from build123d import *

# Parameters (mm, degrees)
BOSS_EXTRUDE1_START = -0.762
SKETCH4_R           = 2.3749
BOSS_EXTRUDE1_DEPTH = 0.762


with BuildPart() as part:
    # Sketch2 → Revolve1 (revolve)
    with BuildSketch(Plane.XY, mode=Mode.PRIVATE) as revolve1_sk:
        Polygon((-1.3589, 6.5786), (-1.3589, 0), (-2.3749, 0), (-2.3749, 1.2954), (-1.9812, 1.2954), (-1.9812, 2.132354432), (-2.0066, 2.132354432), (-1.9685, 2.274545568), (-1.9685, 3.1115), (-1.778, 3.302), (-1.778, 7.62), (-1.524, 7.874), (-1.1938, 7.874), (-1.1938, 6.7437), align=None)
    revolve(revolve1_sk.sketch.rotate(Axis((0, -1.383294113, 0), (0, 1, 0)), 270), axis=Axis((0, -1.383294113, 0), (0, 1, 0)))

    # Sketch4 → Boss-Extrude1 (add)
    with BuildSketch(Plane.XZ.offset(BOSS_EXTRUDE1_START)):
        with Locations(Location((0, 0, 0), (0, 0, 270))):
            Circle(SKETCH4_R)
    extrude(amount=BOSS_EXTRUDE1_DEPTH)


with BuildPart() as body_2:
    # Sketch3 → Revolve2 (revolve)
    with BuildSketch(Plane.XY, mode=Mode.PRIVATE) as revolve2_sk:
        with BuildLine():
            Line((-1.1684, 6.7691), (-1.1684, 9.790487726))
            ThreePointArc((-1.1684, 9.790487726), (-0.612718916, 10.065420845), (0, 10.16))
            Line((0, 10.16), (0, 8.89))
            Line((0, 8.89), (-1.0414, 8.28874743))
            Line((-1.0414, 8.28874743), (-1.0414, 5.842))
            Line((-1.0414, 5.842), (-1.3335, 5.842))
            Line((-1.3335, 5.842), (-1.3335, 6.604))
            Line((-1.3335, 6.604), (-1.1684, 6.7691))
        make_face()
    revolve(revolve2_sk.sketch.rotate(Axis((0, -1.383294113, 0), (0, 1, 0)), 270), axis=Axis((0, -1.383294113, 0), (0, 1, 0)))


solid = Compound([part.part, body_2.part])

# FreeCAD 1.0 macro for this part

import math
import FreeCAD as App
import Part
import Sketcher
from FreeCAD import Vector
Q = App.Units.Quantity


def add_polygon(sketch, points):
    """Adds a closed chain of lines whose ends are joined by coincident constraints."""
    first, n = sketch.GeometryCount, len(points)
    for a, b in zip(points, points[1:] + points[:1]):
        sketch.addGeometry(Part.LineSegment(App.Vector(*a, 0), App.Vector(*b, 0)), False)
    for i in range(n):
        sketch.addConstraint(Sketcher.Constraint("Coincident", first + i, 2, first + (i + 1) % n, 1))

doc = App.newDocument("Part")
body = doc.addObject("PartDesign::Body", "Body")

# Sketch on XY plane
sketch1 = body.newObject("Sketcher::SketchObject", "Sketch")
sketch1.AttachmentSupport = (doc.getObject("XY_Plane"), [""])
sketch1.MapMode = "FlatFace"
add_polygon(sketch1, [(-1.359, 0), (-1.359, 6.579), (-1.194, 6.744), (-1.194, 7.874), (-1.524, 7.874), (-1.778, 7.62), (-1.778, 3.302), (-1.968, 3.111), (-1.968, 2.275), (-2.007, 2.132), (-1.981, 2.132), (-1.981, 1.295), (-2.375, 1.295), (-2.375, 0)])  # lines 0-13
sketch1.addConstraint(Sketcher.Constraint("Vertical", 0))
sketch1.addConstraint(Sketcher.Constraint("Vertical", 2))
sketch1.addConstraint(Sketcher.Constraint("Horizontal", 3))
sketch1.addConstraint(Sketcher.Constraint("Vertical", 5))
sketch1.addConstraint(Sketcher.Constraint("Vertical", 7))
sketch1.addConstraint(Sketcher.Constraint("Horizontal", 9))
sketch1.addConstraint(Sketcher.Constraint("Vertical", 10))
sketch1.addConstraint(Sketcher.Constraint("Horizontal", 11))
sketch1.addConstraint(Sketcher.Constraint("Vertical", 12))
sketch1.addConstraint(Sketcher.Constraint("Horizontal", 13))
sketch1.addConstraint(Sketcher.Constraint("PointOnObject", 12, 2, -1))
sketch1.addConstraint(Sketcher.Constraint("Parallel", 1, 4))
sketch1.addConstraint(Sketcher.Constraint("Parallel", 4, 6))
sketch1.addConstraint(Sketcher.Constraint("Equal", 7, 10))
sketch1.addConstraint(Sketcher.Constraint("Angle", 1, Q("45 deg")))
sketch1.addConstraint(Sketcher.Constraint("Angle", 8, Q("-105 deg")))
sketch1.addConstraint(Sketcher.Constraint("DistanceX", 13, 1, 13, 2, Q("0.04 in")))
sketch1.addConstraint(Sketcher.Constraint("DistanceY", 5, 2, 5, 1, Q("0.17 in")))
sketch1.addConstraint(Sketcher.Constraint("DistanceY", -1, 1, 4, 2, Q("0.3 in")))
sketch1.addConstraint(Sketcher.Constraint("DistanceX", 3, 2, 3, 1, Q("0.013 in")))
sketch1.addConstraint(Sketcher.Constraint("DistanceX", 9, 1, 9, 2, Q("0.001 in")))
sketch1.addConstraint(Sketcher.Constraint("DistanceY", 0, 1, 0, 2, Q("0.259 in")))
sketch1.addConstraint(Sketcher.Constraint("DistanceY", 12, 2, 12, 1, Q("0.051 in")))
sketch1.addConstraint(Sketcher.Constraint("DistanceY", -1, 1, 2, 2, Q("0.31 in")))
sketch1.addConstraint(Sketcher.Constraint("DistanceX", 3, 2, -1, 1, Q("0.06 in")))
sketch1.addConstraint(Sketcher.Constraint("DistanceX", 11, 2, 11, 1, Q("0.0155 in")))
sketch1.addConstraint(Sketcher.Constraint("DistanceY", 2, 1, 2, 2, Q("0.0445 in")))
sketch1.addConstraint(Sketcher.Constraint("DistanceX", 6, 2, 0, 2, Q("0.024 in")))
revolution = body.newObject("PartDesign::Revolution", "Revolution")
revolution.Profile = sketch1
revolution.ReferenceAxis = (sketch1, ["V_Axis"])
revolution.Angle = 360

# Sketch on XZ plane
sketch2 = body.newObject("Sketcher::SketchObject", "Sketch001")
sketch2.AttachmentSupport = (doc.getObject("XZ_Plane"), [""])
sketch2.MapMode = "FlatFace"
sketch2.AttachmentOffset = App.Placement(Vector(0, 0, -0.03 * 25.4), App.Rotation())
sketch2.addGeometry(Part.Circle(Vector(0, 0, 0), Vector(0, 0, 1), 2.4), False)
sketch2.addConstraint(Sketcher.Constraint("Coincident", 0, 3, -1, 1))
sketch2.addConstraint(Sketcher.Constraint("Diameter", 0, Q("0.187 in")))
pad1 = body.newObject("PartDesign::Pad", "Pad")
pad1.Profile = sketch2
pad1.Length = Q("0.03 in")
body2 = doc.addObject("PartDesign::Body", "Body001")

# Sketch on XY plane
sketch3 = body2.newObject("Sketcher::SketchObject", "Sketch002")
sketch3.AttachmentSupport = (doc.getObject("XY_Plane001"), [""])
sketch3.MapMode = "FlatFace"
sketch3.addGeometry(Part.LineSegment(Vector(-1.17, 9.79, 0), Vector(-1.17, 6.77, 0)), False)
sketch3.addGeometry(Part.LineSegment(Vector(-1.17, 6.77, 0), Vector(-1.33, 6.6, 0)), False)
sketch3.addGeometry(Part.LineSegment(Vector(-1.33, 6.6, 0), Vector(-1.33, 5.84, 0)), False)
sketch3.addGeometry(Part.LineSegment(Vector(-1.33, 5.84, 0), Vector(-1.04, 5.84, 0)), False)
sketch3.addGeometry(Part.LineSegment(Vector(-1.04, 5.84, 0), Vector(-1.04, 8.29, 0)), False)
sketch3.addGeometry(Part.LineSegment(Vector(-1.04, 8.29, 0), Vector(0, 8.89, 0)), False)
sketch3.addGeometry(Part.LineSegment(Vector(0, 8.89, 0), Vector(0, 10.16, 0)), False)
sketch3.addGeometry(Part.ArcOfCircle(Part.Circle(Vector(0, 8.13, 0), Vector(0, 0, 1), 2.03), math.radians(90), math.radians(125)), False)
sketch3.addConstraint(Sketcher.Constraint("Coincident", 0, 2, 1, 1))
sketch3.addConstraint(Sketcher.Constraint("Coincident", 1, 2, 2, 1))
sketch3.addConstraint(Sketcher.Constraint("Coincident", 2, 2, 3, 1))
sketch3.addConstraint(Sketcher.Constraint("Coincident", 3, 2, 4, 1))
sketch3.addConstraint(Sketcher.Constraint("Coincident", 4, 2, 5, 1))
sketch3.addConstraint(Sketcher.Constraint("Coincident", 5, 2, 6, 1))
sketch3.addConstraint(Sketcher.Constraint("Coincident", 6, 2, 7, 1))
sketch3.addConstraint(Sketcher.Constraint("Coincident", 7, 2, 0, 1))
sketch3.addConstraint(Sketcher.Constraint("Vertical", 0))
sketch3.addConstraint(Sketcher.Constraint("Vertical", 2))
sketch3.addConstraint(Sketcher.Constraint("Horizontal", 3))
sketch3.addConstraint(Sketcher.Constraint("Vertical", 4))
sketch3.addConstraint(Sketcher.Constraint("Vertical", 6))
sketch3.addConstraint(Sketcher.Constraint("PointOnObject", 7, 3, -2))
sketch3.addConstraint(Sketcher.Constraint("PointOnObject", 5, 2, -2))
sketch3.addConstraint(Sketcher.Constraint("Radius", 7, Q("0.08 in")))
sketch3.addConstraint(Sketcher.Constraint("Angle", 1, Q("-135 deg")))
sketch3.addConstraint(Sketcher.Constraint("Angle", 5, Q("30 deg")))
sketch3.addConstraint(Sketcher.Constraint("DistanceY", 2, 2, 2, 1, Q("0.03 in")))
sketch3.addConstraint(Sketcher.Constraint("DistanceY", 6, 1, 6, 2, Q("0.05 in")))
sketch3.addConstraint(Sketcher.Constraint("DistanceY", -1, 1, 6, 2, Q("0.4 in")))
sketch3.addConstraint(Sketcher.Constraint("DistanceY", -1, 1, 1, 2, Q("0.26 in")))
sketch3.addConstraint(Sketcher.Constraint("DistanceX", 3, 1, 3, 2, Q("0.0115 in")))
sketch3.addConstraint(Sketcher.Constraint("DistanceX", 0, 2, -1, 1, Q("0.046 in")))
sketch3.addConstraint(Sketcher.Constraint("DistanceX", 3, 2, -1, 1, Q("0.041 in")))
revolution2 = body2.newObject("PartDesign::Revolution", "Revolution001")
revolution2.Profile = sketch3
revolution2.ReferenceAxis = (sketch3, ["V_Axis"])
revolution2.Angle = 360

doc.recompute()
